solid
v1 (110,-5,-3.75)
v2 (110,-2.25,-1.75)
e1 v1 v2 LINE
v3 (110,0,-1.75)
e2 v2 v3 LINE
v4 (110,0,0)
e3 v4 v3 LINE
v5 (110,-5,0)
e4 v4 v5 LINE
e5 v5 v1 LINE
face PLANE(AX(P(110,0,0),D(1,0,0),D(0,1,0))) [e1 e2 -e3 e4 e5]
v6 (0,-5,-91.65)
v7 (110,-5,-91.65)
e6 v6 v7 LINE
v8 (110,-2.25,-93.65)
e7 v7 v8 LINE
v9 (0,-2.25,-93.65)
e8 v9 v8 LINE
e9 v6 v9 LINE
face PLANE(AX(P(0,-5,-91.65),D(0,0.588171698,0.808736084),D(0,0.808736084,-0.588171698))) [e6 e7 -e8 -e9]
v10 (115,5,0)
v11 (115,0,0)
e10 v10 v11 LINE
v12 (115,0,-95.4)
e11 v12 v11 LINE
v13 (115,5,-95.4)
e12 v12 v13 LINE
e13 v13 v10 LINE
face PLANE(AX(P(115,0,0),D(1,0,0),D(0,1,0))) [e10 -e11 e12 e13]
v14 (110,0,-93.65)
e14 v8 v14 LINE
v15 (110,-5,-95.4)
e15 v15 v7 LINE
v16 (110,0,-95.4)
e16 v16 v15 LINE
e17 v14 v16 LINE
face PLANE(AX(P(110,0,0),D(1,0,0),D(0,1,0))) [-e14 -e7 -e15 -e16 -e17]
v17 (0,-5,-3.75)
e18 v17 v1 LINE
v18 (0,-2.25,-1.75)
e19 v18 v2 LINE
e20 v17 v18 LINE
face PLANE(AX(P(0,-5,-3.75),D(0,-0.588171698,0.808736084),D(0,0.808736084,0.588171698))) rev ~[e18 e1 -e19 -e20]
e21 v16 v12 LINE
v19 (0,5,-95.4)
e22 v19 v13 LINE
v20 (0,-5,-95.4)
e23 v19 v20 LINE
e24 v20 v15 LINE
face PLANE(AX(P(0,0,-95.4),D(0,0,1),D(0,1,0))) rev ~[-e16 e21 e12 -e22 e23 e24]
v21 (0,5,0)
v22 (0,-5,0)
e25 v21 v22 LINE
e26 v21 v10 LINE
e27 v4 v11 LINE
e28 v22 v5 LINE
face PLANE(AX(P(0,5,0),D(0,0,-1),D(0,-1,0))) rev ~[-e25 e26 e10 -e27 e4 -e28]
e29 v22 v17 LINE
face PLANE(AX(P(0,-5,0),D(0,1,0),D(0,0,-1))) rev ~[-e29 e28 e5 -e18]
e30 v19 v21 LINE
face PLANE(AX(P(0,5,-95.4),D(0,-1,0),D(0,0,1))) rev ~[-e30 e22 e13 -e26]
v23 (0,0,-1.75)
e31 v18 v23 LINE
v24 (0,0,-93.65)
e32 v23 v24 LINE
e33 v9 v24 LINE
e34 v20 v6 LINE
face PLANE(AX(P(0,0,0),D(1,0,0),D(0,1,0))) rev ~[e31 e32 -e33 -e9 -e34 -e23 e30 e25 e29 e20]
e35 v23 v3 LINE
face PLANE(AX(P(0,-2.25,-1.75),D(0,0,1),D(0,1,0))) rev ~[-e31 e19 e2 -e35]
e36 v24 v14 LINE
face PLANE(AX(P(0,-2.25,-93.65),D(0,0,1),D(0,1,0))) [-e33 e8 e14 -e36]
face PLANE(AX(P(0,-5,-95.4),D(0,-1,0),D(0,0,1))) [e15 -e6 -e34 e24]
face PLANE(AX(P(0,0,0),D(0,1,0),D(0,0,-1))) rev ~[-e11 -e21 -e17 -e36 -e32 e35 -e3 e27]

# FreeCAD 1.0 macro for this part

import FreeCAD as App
import Part
import Sketcher

V = App.Vector

doc = App.newDocument("Part")
body = doc.addObject("PartDesign::Body", "Body")
body.AllowCompound = True

sketch1 = body.newObject("Sketcher::SketchObject", "Sketch")
sketch1.AttachmentSupport = (doc.getObject("YZ_Plane"), [""])
sketch1.MapMode = "FlatFace"
sketch1.addGeometry([
    Part.LineSegment(V(0, -1.8, 0), V(0, 0, 0)),
    Part.LineSegment(V(0, 0, 0), V(-5, 0, 0)),
    Part.LineSegment(V(-5, 0, 0), V(-5, -3.8, 0)),
    Part.LineSegment(V(-5, -3.8, 0), V(-2.2, -1.8, 0)),
    Part.LineSegment(V(-2.2, -1.8, 0), V(0, -1.8, 0)),
    Part.LineSegment(V(0, -95.4, 0), V(0, -93.7, 0)),
    Part.LineSegment(V(0, -93.7, 0), V(-2.2, -93.7, 0)),
    Part.LineSegment(V(-2.2, -93.7, 0), V(-5, -91.7, 0)),
    Part.LineSegment(V(-5, -91.7, 0), V(-5, -95.4, 0)),
    Part.LineSegment(V(-5, -95.4, 0), V(0, -95.4, 0)),
], False)
sketch1.addConstraint([
    Sketcher.Constraint("Coincident", 0, 2, 1, 1),
    Sketcher.Constraint("Coincident", 1, 2, 2, 1),
    Sketcher.Constraint("Coincident", 2, 2, 3, 1),
    Sketcher.Constraint("Coincident", 3, 2, 4, 1),
    Sketcher.Constraint("Coincident", 4, 2, 0, 1),
    Sketcher.Constraint("Coincident", 5, 2, 6, 1),
    Sketcher.Constraint("Coincident", 6, 2, 7, 1),
    Sketcher.Constraint("Coincident", 7, 2, 8, 1),
    Sketcher.Constraint("Coincident", 8, 2, 9, 1),
    Sketcher.Constraint("Coincident", 9, 2, 5, 1),
    Sketcher.Constraint("Vertical", 0),
    Sketcher.Constraint("Horizontal", 1),
    Sketcher.Constraint("Vertical", 2),
    Sketcher.Constraint("Horizontal", 4),
    Sketcher.Constraint("Vertical", 5),
    Sketcher.Constraint("Horizontal", 6),
    Sketcher.Constraint("Vertical", 8),
    Sketcher.Constraint("Horizontal", 9),
    Sketcher.Constraint("Coincident", 0, 2, -1, 1),
    Sketcher.Constraint("PointOnObject", 5, 2, -2),
    Sketcher.Constraint("Vertical", 3, 2, 6, 2),
    Sketcher.Constraint("Vertical", 2, 2, 7, 2),
    Sketcher.Constraint("Equal", 0, 5),
    Sketcher.Constraint("Equal", 2, 8),
    Sketcher.Constraint("DistanceX", 1, 2, 1, 1, 5.0),
    Sketcher.Constraint("DistanceX", 4, 1, 4, 2, 2.25),
    Sketcher.Constraint("DistanceY", 0, 1, 0, 2, 1.75),
    Sketcher.Constraint("DistanceY", 2, 2, 2, 1, 3.75),
    Sketcher.Constraint("DistanceY", 8, 2, -1, 1, 95.4),
])
pad1 = body.newObject("PartDesign::Pad", "Pad")
pad1.Profile = sketch1
pad1.Length = 110

sketch2 = body.newObject("Sketcher::SketchObject", "Sketch001")
sketch2.AttachmentSupport = (doc.getObject("YZ_Plane"), [""])
sketch2.MapMode = "FlatFace"
sketch2.addGeometry([
    Part.LineSegment(V(5, 0, 0), V(0, 0, 0)),
    Part.LineSegment(V(0, 0, 0), V(0, -95, 0)),
    Part.LineSegment(V(0, -95, 0), V(5, -95, 0)),
    Part.LineSegment(V(5, -95, 0), V(5, 0, 0)),
], False)
sketch2.addConstraint([
    Sketcher.Constraint("Coincident", 0, 2, 1, 1),
    Sketcher.Constraint("Coincident", 1, 2, 2, 1),
    Sketcher.Constraint("Coincident", 2, 2, 3, 1),
    Sketcher.Constraint("Coincident", 3, 2, 0, 1),
    Sketcher.Constraint("Horizontal", 0),
    Sketcher.Constraint("Vertical", 1),
    Sketcher.Constraint("Horizontal", 2),
    Sketcher.Constraint("Vertical", 3),
    Sketcher.Constraint("Coincident", 0, 2, -1, 1),
    Sketcher.Constraint("DistanceX", 0, 2, 0, 1, 5.0),
    Sketcher.Constraint("DistanceY", 1, 2, 1, 1, 95.4),
])
pad2 = body.newObject("PartDesign::Pad", "Pad001")
pad2.Profile = sketch2
pad2.Length = 115

doc.recompute()
